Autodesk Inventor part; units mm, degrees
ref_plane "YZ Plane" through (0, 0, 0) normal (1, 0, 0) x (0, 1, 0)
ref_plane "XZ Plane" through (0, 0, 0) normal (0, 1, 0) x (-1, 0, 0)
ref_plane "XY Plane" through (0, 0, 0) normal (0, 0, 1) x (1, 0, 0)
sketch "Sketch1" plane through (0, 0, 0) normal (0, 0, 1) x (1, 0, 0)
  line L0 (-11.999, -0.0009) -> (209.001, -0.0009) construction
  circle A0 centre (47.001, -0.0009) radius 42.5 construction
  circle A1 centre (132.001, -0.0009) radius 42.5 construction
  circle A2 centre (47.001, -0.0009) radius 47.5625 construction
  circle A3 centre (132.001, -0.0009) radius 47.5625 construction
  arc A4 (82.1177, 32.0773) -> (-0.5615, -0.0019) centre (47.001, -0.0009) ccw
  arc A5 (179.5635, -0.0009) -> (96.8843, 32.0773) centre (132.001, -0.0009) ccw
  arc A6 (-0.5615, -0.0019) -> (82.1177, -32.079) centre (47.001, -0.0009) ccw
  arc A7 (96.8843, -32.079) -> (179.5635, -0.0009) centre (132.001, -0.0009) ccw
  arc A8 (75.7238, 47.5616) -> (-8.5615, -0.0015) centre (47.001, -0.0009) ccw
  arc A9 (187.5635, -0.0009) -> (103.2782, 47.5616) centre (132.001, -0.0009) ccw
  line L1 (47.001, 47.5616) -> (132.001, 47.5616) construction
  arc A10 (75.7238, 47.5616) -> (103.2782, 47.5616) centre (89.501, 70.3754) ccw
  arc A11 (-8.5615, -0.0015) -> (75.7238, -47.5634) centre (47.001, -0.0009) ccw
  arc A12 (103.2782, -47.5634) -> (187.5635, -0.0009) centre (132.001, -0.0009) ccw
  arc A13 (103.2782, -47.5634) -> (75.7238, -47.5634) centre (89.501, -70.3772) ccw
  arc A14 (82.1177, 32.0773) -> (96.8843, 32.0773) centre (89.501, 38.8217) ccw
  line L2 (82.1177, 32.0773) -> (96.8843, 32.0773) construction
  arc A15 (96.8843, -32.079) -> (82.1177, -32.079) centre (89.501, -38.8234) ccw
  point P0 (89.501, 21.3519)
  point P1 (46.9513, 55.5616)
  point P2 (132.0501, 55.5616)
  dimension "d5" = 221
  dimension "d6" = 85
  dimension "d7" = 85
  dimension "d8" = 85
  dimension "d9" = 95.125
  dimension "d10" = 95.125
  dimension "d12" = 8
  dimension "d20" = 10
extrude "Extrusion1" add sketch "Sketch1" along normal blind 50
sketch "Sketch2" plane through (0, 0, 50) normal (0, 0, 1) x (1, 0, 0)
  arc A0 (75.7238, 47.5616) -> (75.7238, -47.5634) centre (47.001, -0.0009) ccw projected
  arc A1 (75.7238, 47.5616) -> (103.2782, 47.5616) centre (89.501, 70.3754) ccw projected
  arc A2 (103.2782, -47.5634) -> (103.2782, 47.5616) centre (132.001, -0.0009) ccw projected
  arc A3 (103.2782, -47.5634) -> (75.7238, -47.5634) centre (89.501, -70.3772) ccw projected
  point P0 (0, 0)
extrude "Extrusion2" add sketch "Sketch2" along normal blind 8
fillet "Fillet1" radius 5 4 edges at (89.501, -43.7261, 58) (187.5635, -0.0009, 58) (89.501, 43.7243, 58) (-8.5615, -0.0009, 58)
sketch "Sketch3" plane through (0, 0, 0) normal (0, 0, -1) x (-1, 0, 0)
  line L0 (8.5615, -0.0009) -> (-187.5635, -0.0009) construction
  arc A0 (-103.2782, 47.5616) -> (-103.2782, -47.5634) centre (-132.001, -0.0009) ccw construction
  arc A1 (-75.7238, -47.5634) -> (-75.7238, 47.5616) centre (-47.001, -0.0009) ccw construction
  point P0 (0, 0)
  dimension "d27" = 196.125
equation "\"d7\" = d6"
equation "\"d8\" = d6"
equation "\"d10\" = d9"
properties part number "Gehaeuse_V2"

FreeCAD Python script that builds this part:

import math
import FreeCAD as App
import Part
import Sketcher


def edges_at(feature, points):
    """Names of the edges that pass closest to the given points."""
    edges = feature.Shape.Edges
    near = lambda p: min(range(len(edges)), key=lambda i: edges[i].distToShape(Part.Vertex(*p))[0])
    return sorted({f"Edge{near(p) + 1}" for p in points})

doc = App.newDocument("Part")
body = doc.addObject("PartDesign::Body", "Body")

# Sketch on XY plane
sketch1 = doc.addObject("Sketcher::SketchObject", "Sketch")
body.addObject(sketch1)
sketch1.AttachmentSupport = (doc.XY_Plane, [""])
sketch1.MapMode = "FlatFace"
sketch1.addGeometry([
    Part.ArcOfCircle(Part.Circle(App.Vector(90, 70, 0), App.Vector(0, 0, 1), 27), math.radians(-121), math.radians(-59)),  # 0
    Part.ArcOfCircle(Part.Circle(App.Vector(47, 0, 0), App.Vector(0, 0, 1), 56), math.radians(59), math.radians(180)),  # 1
    Part.ArcOfCircle(Part.Circle(App.Vector(47, 0, 0), App.Vector(0, 0, 1), 56), math.radians(-180), math.radians(-59)),  # 2
    Part.ArcOfCircle(Part.Circle(App.Vector(90, -70, 0), App.Vector(0, 0, 1), 27), math.radians(59), math.radians(121)),  # 3
    Part.ArcOfCircle(Part.Circle(App.Vector(132, 0, 0), App.Vector(0, 0, 1), 56), math.radians(-121), math.radians(0)),  # 4
    Part.ArcOfCircle(Part.Circle(App.Vector(132, 0, 0), App.Vector(0, 0, 1), 56), math.radians(0), math.radians(121)),  # 5
    Part.ArcOfCircle(Part.Circle(App.Vector(47, 0, 0), App.Vector(0, 0, 1), 48), math.radians(42), math.radians(180)),  # 6
    Part.ArcOfCircle(Part.Circle(App.Vector(90, 39, 0), App.Vector(0, 0, 1), 10), math.radians(-138), math.radians(-42)),  # 7
    Part.ArcOfCircle(Part.Circle(App.Vector(132, 0, 0), App.Vector(0, 0, 1), 48), math.radians(0), math.radians(138)),  # 8
    Part.ArcOfCircle(Part.Circle(App.Vector(132, 0, 0), App.Vector(0, 0, 1), 48), math.radians(-138), math.radians(0)),  # 9
    Part.ArcOfCircle(Part.Circle(App.Vector(90, -39, 0), App.Vector(0, 0, 1), 10), math.radians(42), math.radians(138)),  # 10
    Part.ArcOfCircle(Part.Circle(App.Vector(47, 0, 0), App.Vector(0, 0, 1), 48), math.radians(-180), math.radians(-42)),  # 11
], False)
sketch1.addConstraint([
    Sketcher.Constraint("Tangent", 0, 1, 1, 1),
    Sketcher.Constraint("Tangent", 1, 2, 2, 1),
    Sketcher.Constraint("Tangent", 2, 2, 3, 2),
    Sketcher.Constraint("Tangent", 3, 1, 4, 1),
    Sketcher.Constraint("Tangent", 4, 2, 5, 1),
    Sketcher.Constraint("Tangent", 5, 2, 0, 2),
    Sketcher.Constraint("Tangent", 6, 1, 7, 1),
    Sketcher.Constraint("Tangent", 7, 2, 8, 2),
    Sketcher.Constraint("Tangent", 8, 1, 9, 2),
    Sketcher.Constraint("Tangent", 9, 1, 10, 1),
    Sketcher.Constraint("Tangent", 10, 2, 11, 2),
    Sketcher.Constraint("Tangent", 11, 1, 6, 2),
    Sketcher.Constraint("Coincident", 6, 3, 1, 3),
    Sketcher.Constraint("Coincident", 8, 3, 4, 3),
    Sketcher.Constraint("Equal", 1, 2),
    Sketcher.Constraint("Equal", 0, 3),
    Sketcher.Constraint("Equal", 2, 4),
    Sketcher.Constraint("Equal", 4, 5),
    Sketcher.Constraint("Equal", 6, 8),
    Sketcher.Constraint("Equal", 8, 9),
    Sketcher.Constraint("Equal", 7, 10),
    Sketcher.Constraint("Equal", 9, 11),
    Sketcher.Constraint("Horizontal", 2, 3, 4, 3),
    Sketcher.Constraint("Horizontal", 11, 3, 4, 2),
    Sketcher.Constraint("Horizontal", 4, 2, 8, 1),
    Sketcher.Constraint("Radius", 7, 10.0),
    Sketcher.Constraint("DistanceX", 1, 3, 4, 3, 85.0),
    Sketcher.Constraint("DistanceX", 8, 1, 4, 2, 8.0),
    Sketcher.Constraint("Radius", 6, 47.5625),
    Sketcher.Constraint("Radius", 0, 26.651),
    Sketcher.Constraint("DistanceX", -1, 1, 0, 3, 89.501),
    Sketcher.Constraint("DistanceY", 1, 3, -1, 1, 0.001),
    Sketcher.Constraint("DistanceY", 11, 1, -1, 1, 0.002),
    Sketcher.Constraint("DistanceY", 1, 2, 0, 1, 47.563),
])
pad1 = doc.addObject("PartDesign::Pad", "Pad")
body.addObject(pad1)
pad1.Profile = sketch1
pad1.Length = 50

# Sketch on XY plane
sketch2 = doc.addObject("Sketcher::SketchObject", "Sketch001")
body.addObject(sketch2)
sketch2.AttachmentSupport = (doc.XY_Plane, [""])
sketch2.MapMode = "FlatFace"
sketch2.AttachmentOffset = App.Placement(App.Vector(0, 0, 50), App.Rotation())
sketch2.addGeometry([
    Part.ArcOfCircle(Part.Circle(App.Vector(90, 70, 0), App.Vector(0, 0, 1), 27), math.radians(-121), math.radians(-59)),
    Part.ArcOfCircle(Part.Circle(App.Vector(47, 0, 0), App.Vector(0, 0, 1), 56), math.radians(59), math.radians(301)),
    Part.ArcOfCircle(Part.Circle(App.Vector(90, -70, 0), App.Vector(0, 0, 1), 27), math.radians(59), math.radians(121)),
    Part.ArcOfCircle(Part.Circle(App.Vector(132, 0, 0), App.Vector(0, 0, 1), 56), math.radians(-121), math.radians(121)),
], False)
sketch2.addConstraint([
    Sketcher.Constraint("Tangent", 0, 1, 1, 1),
    Sketcher.Constraint("Tangent", 1, 2, 2, 2),
    Sketcher.Constraint("Tangent", 2, 1, 3, 1),
    Sketcher.Constraint("Tangent", 3, 2, 0, 2),
    Sketcher.Constraint("Equal", 0, 2),
    Sketcher.Constraint("Equal", 1, 3),
    Sketcher.Constraint("Horizontal", 1, 3, 3, 3),
    Sketcher.Constraint("Radius", 0, 26.651),
    Sketcher.Constraint("DistanceX", 1, 3, 3, 3, 85.0),
    Sketcher.Constraint("Radius", 1, 55.5625),
    Sketcher.Constraint("DistanceX", -1, 1, 0, 3, 89.501),
    Sketcher.Constraint("DistanceY", 1, 3, -1, 1, 0.001),
])
pad2 = doc.addObject("PartDesign::Pad", "Pad001")
body.addObject(pad2)
pad2.Profile = sketch2
pad2.Length = 8
doc.recompute()

fillet = doc.addObject("PartDesign::Fillet", "Fillet")
body.addObject(fillet)
fillet.Base = (pad2, edges_at(pad2, [
    (89.501, -43.726, 58),
    (187.564, -0.001, 58),
    (89.501, 43.724, 58),
    (-8.562, -0.001, 58),
]))
fillet.Radius = 5

doc.recompute()
